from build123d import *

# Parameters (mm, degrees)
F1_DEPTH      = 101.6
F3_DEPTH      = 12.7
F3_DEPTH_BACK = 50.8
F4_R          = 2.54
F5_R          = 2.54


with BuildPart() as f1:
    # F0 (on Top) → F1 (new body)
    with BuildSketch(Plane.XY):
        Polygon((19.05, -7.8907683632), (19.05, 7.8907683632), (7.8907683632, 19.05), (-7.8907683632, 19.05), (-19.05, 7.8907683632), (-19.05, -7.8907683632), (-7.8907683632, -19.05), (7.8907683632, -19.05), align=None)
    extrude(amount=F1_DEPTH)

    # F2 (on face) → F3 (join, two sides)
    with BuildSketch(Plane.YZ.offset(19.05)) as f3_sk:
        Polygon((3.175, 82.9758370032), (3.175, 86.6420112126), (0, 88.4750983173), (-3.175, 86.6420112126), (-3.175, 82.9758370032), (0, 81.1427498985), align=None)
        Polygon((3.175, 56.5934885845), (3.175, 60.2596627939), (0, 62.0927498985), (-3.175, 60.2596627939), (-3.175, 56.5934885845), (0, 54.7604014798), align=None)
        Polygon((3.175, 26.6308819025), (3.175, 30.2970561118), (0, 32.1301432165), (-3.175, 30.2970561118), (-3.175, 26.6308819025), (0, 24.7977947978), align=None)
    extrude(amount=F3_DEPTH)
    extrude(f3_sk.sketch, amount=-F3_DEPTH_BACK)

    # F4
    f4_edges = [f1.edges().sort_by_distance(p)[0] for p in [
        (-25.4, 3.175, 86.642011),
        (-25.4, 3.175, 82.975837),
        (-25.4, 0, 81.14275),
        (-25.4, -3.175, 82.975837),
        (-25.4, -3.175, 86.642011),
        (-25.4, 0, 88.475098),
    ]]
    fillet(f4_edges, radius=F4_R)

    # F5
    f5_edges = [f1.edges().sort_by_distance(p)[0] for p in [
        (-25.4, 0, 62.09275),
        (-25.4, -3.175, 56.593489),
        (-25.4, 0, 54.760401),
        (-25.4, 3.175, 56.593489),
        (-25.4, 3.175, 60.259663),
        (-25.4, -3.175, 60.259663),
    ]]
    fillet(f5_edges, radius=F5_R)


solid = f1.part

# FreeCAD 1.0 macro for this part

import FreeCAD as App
import Part
import Sketcher

V = App.Vector
Q = App.Units.Quantity


def edges_at(feature, points):
    """Names of the edges that pass closest to the given points."""
    edges = feature.Shape.Edges
    near = lambda p: min(range(len(edges)), key=lambda i: edges[i].distToShape(Part.Vertex(*p))[0])
    return sorted({f"Edge{near(p) + 1}" for p in points})


def add_polygon(sketch, points):
    """Adds a closed chain of lines whose ends are joined by coincident constraints."""
    first, n = sketch.GeometryCount, len(points)
    for a, b in zip(points, points[1:] + points[:1]):
        sketch.addGeometry(Part.LineSegment(App.Vector(*a, 0), App.Vector(*b, 0)), False)
    for i in range(n):
        sketch.addConstraint(Sketcher.Constraint("Coincident", first + i, 2, first + (i + 1) % n, 1))

doc = App.newDocument("Part")
body = doc.addObject("PartDesign::Body", "Body")

# Sketch on XY plane
sketch1 = body.newObject("Sketcher::SketchObject", "Sketch")
sketch1.AttachmentSupport = (doc.getObject("XY_Plane"), [""])
sketch1.MapMode = "FlatFace"
add_polygon(sketch1, [(19.05, -7.890768), (19.05, 7.890768), (7.890768, 19.05), (-7.890768, 19.05), (-19.05, 7.890768), (-19.05, -7.890768), (-7.890768, -19.05), (7.890768, -19.05)])  # lines 0-7
sketch1.addConstraint(Sketcher.Constraint("Vertical", 0))
sketch1.addConstraint(Sketcher.Constraint("Horizontal", 2))
sketch1.addConstraint(Sketcher.Constraint("Vertical", 4))
sketch1.addConstraint(Sketcher.Constraint("Horizontal", 6))
sketch1.addConstraint(Sketcher.Constraint("Symmetric", 0, 2, 4, 2, -1, 1))
sketch1.addConstraint(Sketcher.Constraint("Symmetric", 1, 2, 5, 2, -1, 1))
sketch1.addConstraint(Sketcher.Constraint("Perpendicular", 1, 3))
sketch1.addConstraint(Sketcher.Constraint("Perpendicular", 5, 7))
sketch1.addConstraint(Sketcher.Constraint("Horizontal", 0, 2, 3, 2))
sketch1.addConstraint(Sketcher.Constraint("Horizontal", 4, 2, 7, 2))
sketch1.addConstraint(Sketcher.Constraint("Vertical", 2, 2, 5, 2))
sketch1.addConstraint(Sketcher.Constraint("Equal", 6, 0))
sketch1.addConstraint(Sketcher.Constraint("DistanceX", 3, 2, 0, 2, Q("1.5 in")))
sketch1.addConstraint(Sketcher.Constraint("DistanceX", 2, 2, 2, 1, Q("15.781537 mm")))
pad1 = body.newObject("PartDesign::Pad", "Pad")
pad1.Profile = sketch1
pad1.Length = Q("4 in")

# Sketch on YZ plane
sketch2 = body.newObject("Sketcher::SketchObject", "Sketch001")
sketch2.AttachmentSupport = (doc.getObject("YZ_Plane"), [""])
sketch2.MapMode = "FlatFace"
sketch2.AttachmentOffset = App.Placement(V(0, 0, 0.75 * 25.4), App.Rotation())
add_polygon(sketch2, [(3.175, 82.975837), (3.175, 86.642011), (0, 88.475098), (-3.175, 86.642011), (-3.175, 82.975837), (0, 81.14275)])  # lines 0-5
add_polygon(sketch2, [(3.175, 56.593489), (3.175, 60.259663), (0, 62.09275), (-3.175, 60.259663), (-3.175, 56.593489), (0, 54.760401)])  # lines 6-11
add_polygon(sketch2, [(3.175, 26.630882), (3.175, 30.297056), (0, 32.130143), (-3.175, 30.297056), (-3.175, 26.630882), (0, 24.797795)])  # lines 12-17
sketch2.addConstraint(Sketcher.Constraint("Vertical", 0))
sketch2.addConstraint(Sketcher.Constraint("Vertical", 3))
sketch2.addConstraint(Sketcher.Constraint("Vertical", 6))
sketch2.addConstraint(Sketcher.Constraint("Vertical", 9))
sketch2.addConstraint(Sketcher.Constraint("Vertical", 12))
sketch2.addConstraint(Sketcher.Constraint("Vertical", 15))
sketch2.addConstraint(Sketcher.Constraint("Symmetric", 0, 2, 2, 2, -2))
sketch2.addConstraint(Sketcher.Constraint("Symmetric", 6, 2, 8, 2, -2))
sketch2.addConstraint(Sketcher.Constraint("Symmetric", 12, 2, 14, 2, -2))
sketch2.addConstraint(Sketcher.Constraint("PointOnObject", 1, 2, -2))
sketch2.addConstraint(Sketcher.Constraint("PointOnObject", 4, 2, -2))
sketch2.addConstraint(Sketcher.Constraint("PointOnObject", 7, 2, -2))
sketch2.addConstraint(Sketcher.Constraint("PointOnObject", 10, 2, -2))
sketch2.addConstraint(Sketcher.Constraint("PointOnObject", 13, 2, -2))
sketch2.addConstraint(Sketcher.Constraint("PointOnObject", 16, 2, -2))
sketch2.addConstraint(Sketcher.Constraint("Parallel", 1, 4))
sketch2.addConstraint(Sketcher.Constraint("Parallel", 2, 5))
sketch2.addConstraint(Sketcher.Constraint("Parallel", 4, 7))
sketch2.addConstraint(Sketcher.Constraint("Parallel", 7, 10))
sketch2.addConstraint(Sketcher.Constraint("Parallel", 8, 11))
sketch2.addConstraint(Sketcher.Constraint("Parallel", 10, 13))
sketch2.addConstraint(Sketcher.Constraint("Parallel", 13, 16))
sketch2.addConstraint(Sketcher.Constraint("Parallel", 14, 17))
sketch2.addConstraint(Sketcher.Constraint("Vertical", 5, 2, 6, 2))
sketch2.addConstraint(Sketcher.Constraint("Vertical", 11, 2, 12, 2))
sketch2.addConstraint(Sketcher.Constraint("Equal", 3, 6))
sketch2.addConstraint(Sketcher.Constraint("Equal", 9, 12))
sketch2.addConstraint(Sketcher.Constraint("Angle", 1, Q("150 deg")))
sketch2.addConstraint(Sketcher.Constraint("DistanceX", 2, 2, 0, 2, Q("0.25 in")))
sketch2.addConstraint(Sketcher.Constraint("DistanceY", 7, 2, 4, 2, Q("0.75 in")))
sketch2.addConstraint(Sketcher.Constraint("DistanceY", -1, 1, 1, 2, Q("88.475098 mm")))
sketch2.addConstraint(Sketcher.Constraint("DistanceY", -1, 1, 10, 2, Q("54.760401 mm")))
sketch2.addConstraint(Sketcher.Constraint("DistanceY", -1, 1, 15, 2, Q("26.630882 mm")))
pad2 = body.newObject("PartDesign::Pad", "Pad001")
pad2.Profile = sketch2
pad2.Type = "TwoLengths"
pad2.Length = Q("0.5 in")
pad2.Length2 = Q("2 in")
doc.recompute()

fillet = body.newObject("PartDesign::Fillet", "Fillet")
fillet.Base = (pad2, edges_at(pad2, [
    (-25.4, 3.175, 86.642),
    (-25.4, 3.175, 82.976),
    (-25.4, 0, 81.143),
    (-25.4, -3.175, 82.976),
    (-25.4, -3.175, 86.642),
    (-25.4, 0, 88.475),
]))
fillet.Radius = Q("0.1 in")
doc.recompute()

fillet2 = body.newObject("PartDesign::Fillet", "Fillet001")
fillet2.Base = (fillet, edges_at(fillet, [
    (-25.4, 0, 62.093),
    (-25.4, -3.175, 56.593),
    (-25.4, 0, 54.76),
    (-25.4, 3.175, 56.593),
    (-25.4, 3.175, 60.26),
    (-25.4, -3.175, 60.26),
]))
fillet2.Radius = Q("0.1 in")

doc.recompute()
